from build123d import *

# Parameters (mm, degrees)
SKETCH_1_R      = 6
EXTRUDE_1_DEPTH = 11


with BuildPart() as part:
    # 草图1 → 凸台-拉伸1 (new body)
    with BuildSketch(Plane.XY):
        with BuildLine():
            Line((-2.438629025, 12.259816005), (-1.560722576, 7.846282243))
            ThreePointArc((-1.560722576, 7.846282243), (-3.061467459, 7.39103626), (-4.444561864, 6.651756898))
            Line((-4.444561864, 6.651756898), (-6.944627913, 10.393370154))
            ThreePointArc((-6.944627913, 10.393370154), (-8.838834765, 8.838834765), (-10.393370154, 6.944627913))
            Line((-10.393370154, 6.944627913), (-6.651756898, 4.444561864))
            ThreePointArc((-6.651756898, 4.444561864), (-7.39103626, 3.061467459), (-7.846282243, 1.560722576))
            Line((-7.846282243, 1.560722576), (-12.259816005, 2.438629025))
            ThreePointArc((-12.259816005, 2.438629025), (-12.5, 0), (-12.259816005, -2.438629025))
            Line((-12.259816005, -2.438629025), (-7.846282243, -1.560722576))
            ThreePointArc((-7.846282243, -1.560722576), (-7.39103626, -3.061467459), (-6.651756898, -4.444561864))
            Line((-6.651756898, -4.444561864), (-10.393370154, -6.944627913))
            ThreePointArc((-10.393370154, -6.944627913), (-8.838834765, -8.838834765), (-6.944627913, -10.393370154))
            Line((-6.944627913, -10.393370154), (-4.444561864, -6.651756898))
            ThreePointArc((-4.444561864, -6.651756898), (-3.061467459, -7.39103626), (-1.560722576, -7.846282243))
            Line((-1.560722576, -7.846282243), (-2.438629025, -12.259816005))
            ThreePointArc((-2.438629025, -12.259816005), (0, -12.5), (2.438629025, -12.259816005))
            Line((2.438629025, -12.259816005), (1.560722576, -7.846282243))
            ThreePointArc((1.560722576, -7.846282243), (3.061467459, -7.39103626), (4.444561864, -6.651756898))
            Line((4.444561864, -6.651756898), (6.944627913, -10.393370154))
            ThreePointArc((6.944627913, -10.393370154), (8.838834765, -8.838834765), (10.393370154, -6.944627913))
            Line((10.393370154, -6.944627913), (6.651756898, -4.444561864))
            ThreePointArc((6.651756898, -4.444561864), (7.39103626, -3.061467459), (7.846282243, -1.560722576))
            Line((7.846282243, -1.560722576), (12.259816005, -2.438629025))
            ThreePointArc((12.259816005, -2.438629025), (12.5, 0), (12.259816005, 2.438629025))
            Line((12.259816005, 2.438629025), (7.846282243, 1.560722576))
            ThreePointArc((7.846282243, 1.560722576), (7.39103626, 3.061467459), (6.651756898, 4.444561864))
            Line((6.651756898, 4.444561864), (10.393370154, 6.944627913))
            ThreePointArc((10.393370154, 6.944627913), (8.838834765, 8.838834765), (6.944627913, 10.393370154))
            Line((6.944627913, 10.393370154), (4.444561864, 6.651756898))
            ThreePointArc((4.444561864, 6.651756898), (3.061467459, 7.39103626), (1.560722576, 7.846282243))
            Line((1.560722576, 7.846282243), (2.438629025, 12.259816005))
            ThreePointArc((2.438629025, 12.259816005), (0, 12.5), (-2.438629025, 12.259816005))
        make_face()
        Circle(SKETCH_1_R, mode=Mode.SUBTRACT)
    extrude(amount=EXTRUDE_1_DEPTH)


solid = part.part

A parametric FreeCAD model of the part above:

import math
import FreeCAD as App
import Part
import Sketcher
from FreeCAD import Vector
Q = App.Units.Quantity

doc = App.newDocument("Part")
body = doc.addObject("PartDesign::Body", "Body")

sketch1 = doc.addObject("Sketcher::SketchObject", "Sketch")
body.addObject(sketch1)
sketch1.AttachmentSupport = (doc.XY_Plane, [""])
sketch1.MapMode = "FlatFace"
sketch1.addGeometry(Part.LineSegment(Vector(-2.4, 12.3, 0), Vector(-1.6, 7.8, 0)), False)
sketch1.addGeometry(Part.ArcOfCircle(Part.Circle(Vector(0, 0, 0), Vector(0, 0, 1), 8), math.radians(101), math.radians(124)), False)
sketch1.addGeometry(Part.LineSegment(Vector(-4.4, 6.7, 0), Vector(-6.9, 10.4, 0)), False)
sketch1.addGeometry(Part.ArcOfCircle(Part.Circle(Vector(0, 0, 0), Vector(0, 0, 1), 12.5), math.radians(124), math.radians(146)), False)
sketch1.addGeometry(Part.LineSegment(Vector(-10.4, 6.9, 0), Vector(-6.7, 4.4, 0)), False)
sketch1.addGeometry(Part.ArcOfCircle(Part.Circle(Vector(0, 0, 0), Vector(0, 0, 1), 8), math.radians(146), math.radians(169)), False)
sketch1.addGeometry(Part.LineSegment(Vector(-7.8, 1.6, 0), Vector(-12.3, 2.4, 0)), False)
sketch1.addGeometry(Part.ArcOfCircle(Part.Circle(Vector(0, 0, 0), Vector(0, 0, 1), 12.5), math.radians(169), math.radians(191)), False)
sketch1.addGeometry(Part.LineSegment(Vector(-12.3, -2.4, 0), Vector(-7.8, -1.6, 0)), False)
sketch1.addGeometry(Part.ArcOfCircle(Part.Circle(Vector(0, 0, 0), Vector(0, 0, 1), 8), math.radians(-169), math.radians(-146)), False)
sketch1.addGeometry(Part.LineSegment(Vector(-6.7, -4.4, 0), Vector(-10.4, -6.9, 0)), False)
sketch1.addGeometry(Part.ArcOfCircle(Part.Circle(Vector(0, 0, 0), Vector(0, 0, 1), 12.5), math.radians(-146), math.radians(-124)), False)
sketch1.addGeometry(Part.LineSegment(Vector(-6.9, -10.4, 0), Vector(-4.4, -6.7, 0)), False)
sketch1.addGeometry(Part.ArcOfCircle(Part.Circle(Vector(0, 0, 0), Vector(0, 0, 1), 8), math.radians(-124), math.radians(-101)), False)
sketch1.addGeometry(Part.LineSegment(Vector(-1.6, -7.8, 0), Vector(-2.4, -12.3, 0)), False)
sketch1.addGeometry(Part.ArcOfCircle(Part.Circle(Vector(0, 0, 0), Vector(0, 0, 1), 12.5), math.radians(-101), math.radians(-79)), False)
sketch1.addGeometry(Part.LineSegment(Vector(2.4, -12.3, 0), Vector(1.6, -7.8, 0)), False)
sketch1.addGeometry(Part.ArcOfCircle(Part.Circle(Vector(0, 0, 0), Vector(0, 0, 1), 8), math.radians(-79), math.radians(-56)), False)
sketch1.addGeometry(Part.LineSegment(Vector(4.4, -6.7, 0), Vector(6.9, -10.4, 0)), False)
sketch1.addGeometry(Part.ArcOfCircle(Part.Circle(Vector(0, 0, 0), Vector(0, 0, 1), 12.5), math.radians(-56), math.radians(-34)), False)
sketch1.addGeometry(Part.LineSegment(Vector(10.4, -6.9, 0), Vector(6.7, -4.4, 0)), False)
sketch1.addGeometry(Part.ArcOfCircle(Part.Circle(Vector(0, 0, 0), Vector(0, 0, 1), 8), math.radians(-34), math.radians(-11)), False)
sketch1.addGeometry(Part.LineSegment(Vector(7.8, -1.6, 0), Vector(12.3, -2.4, 0)), False)
sketch1.addGeometry(Part.ArcOfCircle(Part.Circle(Vector(0, 0, 0), Vector(0, 0, 1), 12.5), math.radians(-11), math.radians(11)), False)
sketch1.addGeometry(Part.LineSegment(Vector(12.3, 2.4, 0), Vector(7.8, 1.6, 0)), False)
sketch1.addGeometry(Part.ArcOfCircle(Part.Circle(Vector(0, 0, 0), Vector(0, 0, 1), 8), math.radians(11), math.radians(34)), False)
sketch1.addGeometry(Part.LineSegment(Vector(6.7, 4.4, 0), Vector(10.4, 6.9, 0)), False)
sketch1.addGeometry(Part.ArcOfCircle(Part.Circle(Vector(0, 0, 0), Vector(0, 0, 1), 12.5), math.radians(34), math.radians(56)), False)
sketch1.addGeometry(Part.LineSegment(Vector(6.9, 10.4, 0), Vector(4.4, 6.7, 0)), False)
sketch1.addGeometry(Part.ArcOfCircle(Part.Circle(Vector(0, 0, 0), Vector(0, 0, 1), 8), math.radians(56), math.radians(79)), False)
sketch1.addGeometry(Part.LineSegment(Vector(1.6, 7.8, 0), Vector(2.4, 12.3, 0)), False)
sketch1.addGeometry(Part.ArcOfCircle(Part.Circle(Vector(0, 0, 0), Vector(0, 0, 1), 12.5), math.radians(79), math.radians(101)), False)
sketch1.addGeometry(Part.Circle(Vector(0, 0, 0), Vector(0, 0, 1), 6), False)
sketch1.addConstraint(Sketcher.Constraint("Coincident", 0, 2, 1, 1))
sketch1.addConstraint(Sketcher.Constraint("Coincident", 1, 2, 2, 1))
sketch1.addConstraint(Sketcher.Constraint("Coincident", 2, 2, 3, 1))
sketch1.addConstraint(Sketcher.Constraint("Coincident", 3, 2, 4, 1))
sketch1.addConstraint(Sketcher.Constraint("Coincident", 4, 2, 5, 1))
sketch1.addConstraint(Sketcher.Constraint("Coincident", 5, 2, 6, 1))
sketch1.addConstraint(Sketcher.Constraint("Coincident", 6, 2, 7, 1))
sketch1.addConstraint(Sketcher.Constraint("Coincident", 7, 2, 8, 1))
sketch1.addConstraint(Sketcher.Constraint("Coincident", 8, 2, 9, 1))
sketch1.addConstraint(Sketcher.Constraint("Coincident", 9, 2, 10, 1))
sketch1.addConstraint(Sketcher.Constraint("Coincident", 10, 2, 11, 1))
sketch1.addConstraint(Sketcher.Constraint("Coincident", 11, 2, 12, 1))
sketch1.addConstraint(Sketcher.Constraint("Coincident", 12, 2, 13, 1))
sketch1.addConstraint(Sketcher.Constraint("Coincident", 13, 2, 14, 1))
sketch1.addConstraint(Sketcher.Constraint("Coincident", 14, 2, 15, 1))
sketch1.addConstraint(Sketcher.Constraint("Coincident", 15, 2, 16, 1))
sketch1.addConstraint(Sketcher.Constraint("Coincident", 16, 2, 17, 1))
sketch1.addConstraint(Sketcher.Constraint("Coincident", 17, 2, 18, 1))
sketch1.addConstraint(Sketcher.Constraint("Coincident", 18, 2, 19, 1))
sketch1.addConstraint(Sketcher.Constraint("Coincident", 19, 2, 20, 1))
sketch1.addConstraint(Sketcher.Constraint("Coincident", 20, 2, 21, 1))
sketch1.addConstraint(Sketcher.Constraint("Coincident", 21, 2, 22, 1))
sketch1.addConstraint(Sketcher.Constraint("Coincident", 22, 2, 23, 1))
sketch1.addConstraint(Sketcher.Constraint("Coincident", 23, 2, 24, 1))
sketch1.addConstraint(Sketcher.Constraint("Coincident", 24, 2, 25, 1))
sketch1.addConstraint(Sketcher.Constraint("Coincident", 25, 2, 26, 1))
sketch1.addConstraint(Sketcher.Constraint("Coincident", 26, 2, 27, 1))
sketch1.addConstraint(Sketcher.Constraint("Coincident", 27, 2, 28, 1))
sketch1.addConstraint(Sketcher.Constraint("Coincident", 28, 2, 29, 1))
sketch1.addConstraint(Sketcher.Constraint("Coincident", 29, 2, 30, 1))
sketch1.addConstraint(Sketcher.Constraint("Coincident", 30, 2, 31, 1))
sketch1.addConstraint(Sketcher.Constraint("Coincident", 31, 2, 0, 1))
sketch1.addConstraint(Sketcher.Constraint("Coincident", 1, 3, -1, 1))
sketch1.addConstraint(Sketcher.Constraint("Coincident", 3, 3, -1, 1))
sketch1.addConstraint(Sketcher.Constraint("Coincident", 5, 3, -1, 1))
sketch1.addConstraint(Sketcher.Constraint("Coincident", 7, 3, -1, 1))
sketch1.addConstraint(Sketcher.Constraint("Coincident", 9, 3, -1, 1))
sketch1.addConstraint(Sketcher.Constraint("Coincident", 11, 3, -1, 1))
sketch1.addConstraint(Sketcher.Constraint("Coincident", 13, 3, -1, 1))
sketch1.addConstraint(Sketcher.Constraint("Coincident", 15, 3, -1, 1))
sketch1.addConstraint(Sketcher.Constraint("Coincident", 17, 3, -1, 1))
sketch1.addConstraint(Sketcher.Constraint("Coincident", 19, 3, -1, 1))
sketch1.addConstraint(Sketcher.Constraint("Coincident", 21, 3, -1, 1))
sketch1.addConstraint(Sketcher.Constraint("Coincident", 23, 3, -1, 1))
sketch1.addConstraint(Sketcher.Constraint("Coincident", 25, 3, -1, 1))
sketch1.addConstraint(Sketcher.Constraint("Coincident", 27, 3, -1, 1))
sketch1.addConstraint(Sketcher.Constraint("Coincident", 29, 3, -1, 1))
sketch1.addConstraint(Sketcher.Constraint("Coincident", 31, 3, -1, 1))
sketch1.addConstraint(Sketcher.Constraint("Coincident", 32, 3, -1, 1))
sketch1.addConstraint(Sketcher.Constraint("Equal", 1, 5))
sketch1.addConstraint(Sketcher.Constraint("Equal", 3, 7))
sketch1.addConstraint(Sketcher.Constraint("Equal", 5, 9))
sketch1.addConstraint(Sketcher.Constraint("Equal", 7, 11))
sketch1.addConstraint(Sketcher.Constraint("Equal", 9, 13))
sketch1.addConstraint(Sketcher.Constraint("Equal", 11, 15))
sketch1.addConstraint(Sketcher.Constraint("Equal", 13, 17))
sketch1.addConstraint(Sketcher.Constraint("Equal", 15, 19))
sketch1.addConstraint(Sketcher.Constraint("Equal", 17, 21))
sketch1.addConstraint(Sketcher.Constraint("Equal", 19, 23))
sketch1.addConstraint(Sketcher.Constraint("Equal", 21, 25))
sketch1.addConstraint(Sketcher.Constraint("Equal", 23, 27))
sketch1.addConstraint(Sketcher.Constraint("Equal", 25, 29))
sketch1.addConstraint(Sketcher.Constraint("Equal", 27, 31))
sketch1.addConstraint(Sketcher.Constraint("Perpendicular", 0, 8))
sketch1.addConstraint(Sketcher.Constraint("Perpendicular", 2, 10))
sketch1.addConstraint(Sketcher.Constraint("Perpendicular", 4, 12))
sketch1.addConstraint(Sketcher.Constraint("Perpendicular", 6, 14))
sketch1.addConstraint(Sketcher.Constraint("Perpendicular", 8, 16))
sketch1.addConstraint(Sketcher.Constraint("Perpendicular", 10, 18))
sketch1.addConstraint(Sketcher.Constraint("Perpendicular", 12, 20))
sketch1.addConstraint(Sketcher.Constraint("Perpendicular", 14, 22))
sketch1.addConstraint(Sketcher.Constraint("Perpendicular", 16, 24))
sketch1.addConstraint(Sketcher.Constraint("Perpendicular", 18, 26))
sketch1.addConstraint(Sketcher.Constraint("Perpendicular", 20, 28))
sketch1.addConstraint(Sketcher.Constraint("Perpendicular", 22, 30))
sketch1.addConstraint(Sketcher.Constraint("Horizontal", 14, 2, 15, 2))
sketch1.addConstraint(Sketcher.Constraint("Horizontal", 13, 2, 16, 2))
sketch1.addConstraint(Sketcher.Constraint("Horizontal", 12, 2, 17, 2))
sketch1.addConstraint(Sketcher.Constraint("Horizontal", 11, 2, 18, 2))
sketch1.addConstraint(Sketcher.Constraint("Horizontal", 10, 2, 19, 2))
sketch1.addConstraint(Sketcher.Constraint("Horizontal", 8, 2, 21, 2))
sketch1.addConstraint(Sketcher.Constraint("Horizontal", 6, 2, 23, 2))
sketch1.addConstraint(Sketcher.Constraint("Horizontal", 4, 2, 25, 2))
sketch1.addConstraint(Sketcher.Constraint("Horizontal", 2, 2, 27, 2))
sketch1.addConstraint(Sketcher.Constraint("Horizontal", 0, 2, 29, 2))
sketch1.addConstraint(Sketcher.Constraint("Vertical", 6, 2, 7, 2))
sketch1.addConstraint(Sketcher.Constraint("Vertical", 4, 2, 9, 2))
sketch1.addConstraint(Sketcher.Constraint("Vertical", 2, 2, 11, 2))
sketch1.addConstraint(Sketcher.Constraint("Vertical", 0, 2, 13, 2))
sketch1.addConstraint(Sketcher.Constraint("Diameter", 32, Q("12 mm")))
sketch1.addConstraint(Sketcher.Constraint("Radius", 1, Q("8 mm")))
sketch1.addConstraint(Sketcher.Constraint("Radius", 3, Q("12.5 mm")))
sketch1.addConstraint(Sketcher.Constraint("Angle", 0, Q("-78.75 deg")))
sketch1.addConstraint(Sketcher.Constraint("Angle", 2, Q("123.75 deg")))
sketch1.addConstraint(Sketcher.Constraint("DistanceY", 6, 2, 3, 2, Q("4.505999 mm")))
sketch1.addConstraint(Sketcher.Constraint("DistanceX", 11, 2, 14, 2, Q("4.505999 mm")))
sketch1.addConstraint(Sketcher.Constraint("DistanceX", 1, 2, -1, 1, Q("4.444562 mm")))
sketch1.addConstraint(Sketcher.Constraint("DistanceX", 3, 2, -1, 1, Q("10.39337 mm")))
pad1 = doc.addObject("PartDesign::Pad", "Pad")
body.addObject(pad1)
pad1.Profile = sketch1
pad1.Length = 11

doc.recompute()
